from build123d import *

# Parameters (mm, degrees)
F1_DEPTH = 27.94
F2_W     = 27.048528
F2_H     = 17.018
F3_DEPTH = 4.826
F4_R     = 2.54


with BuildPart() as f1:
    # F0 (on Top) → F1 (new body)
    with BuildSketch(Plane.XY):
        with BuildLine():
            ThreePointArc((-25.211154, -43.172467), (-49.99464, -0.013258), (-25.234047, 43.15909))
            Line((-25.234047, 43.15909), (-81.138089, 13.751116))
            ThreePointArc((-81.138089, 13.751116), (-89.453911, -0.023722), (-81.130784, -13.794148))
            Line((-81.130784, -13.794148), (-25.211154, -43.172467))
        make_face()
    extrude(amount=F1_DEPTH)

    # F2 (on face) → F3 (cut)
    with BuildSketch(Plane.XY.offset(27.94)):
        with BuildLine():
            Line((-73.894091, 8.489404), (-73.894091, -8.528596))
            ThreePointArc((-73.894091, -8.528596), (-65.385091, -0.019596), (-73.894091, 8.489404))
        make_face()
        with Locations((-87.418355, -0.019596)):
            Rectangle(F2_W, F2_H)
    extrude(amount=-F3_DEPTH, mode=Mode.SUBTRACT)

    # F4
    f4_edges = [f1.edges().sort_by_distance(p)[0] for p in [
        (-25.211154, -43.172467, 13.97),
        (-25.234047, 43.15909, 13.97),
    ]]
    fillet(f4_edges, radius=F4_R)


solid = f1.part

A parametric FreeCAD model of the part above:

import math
import FreeCAD as App
import Part
import Sketcher
Q = App.Units.Quantity


def edges_at(feature, points):
    """Names of the edges that pass closest to the given points."""
    edges = feature.Shape.Edges
    near = lambda p: min(range(len(edges)), key=lambda i: edges[i].distToShape(Part.Vertex(*p))[0])
    return sorted({f"Edge{near(p) + 1}" for p in points})

doc = App.newDocument("Part")
body = doc.addObject("PartDesign::Body", "Body")

# Sketch on XY plane
sketch1 = body.newObject("Sketcher::SketchObject", "Sketch")
sketch1.AttachmentSupport = (doc.getObject("XY_Plane"), [""])
sketch1.MapMode = "FlatFace"
sketch1.addGeometry([
    Part.ArcOfCircle(Part.Circle(App.Vector(0, 0, 0), App.Vector(0, 0, 1), 50), math.radians(120), math.radians(240)),
    Part.LineSegment(App.Vector(-25, 43, 0), App.Vector(-81, 14, 0)),
    Part.ArcOfCircle(Part.Circle(App.Vector(-74, 0, 0), App.Vector(0, 0, 1), 16), math.radians(118), math.radians(242)),
    Part.LineSegment(App.Vector(-81, -14, 0), App.Vector(-25, -43, 0)),
], False)
sketch1.addConstraint([
    Sketcher.Constraint("Coincident", 0, 1, 1, 1),
    Sketcher.Constraint("Tangent", 1, 2, 2, 1),
    Sketcher.Constraint("Tangent", 2, 2, 3, 1),
    Sketcher.Constraint("Coincident", 3, 2, 0, 2),
    Sketcher.Constraint("Coincident", 0, 3, -1, 1),
    Sketcher.Constraint("Equal", 1, 3),
    Sketcher.Constraint("Radius", 0, 49.994641),
    Sketcher.Constraint("Radius", 2, 15.55982),
    Sketcher.Constraint("DistanceX", 2, 3, -1, 1, 73.894091),
    Sketcher.Constraint("DistanceY", -1, 1, 0, 1, 43.15909),
    Sketcher.Constraint("DistanceX", 1, 2, -1, 1, 81.138089),
])
pad1 = body.newObject("PartDesign::Pad", "Pad")
pad1.Profile = sketch1
pad1.Length = Q("1.1 in")

# Sketch on XY plane
sketch2 = body.newObject("Sketcher::SketchObject", "Sketch001")
sketch2.AttachmentSupport = (doc.getObject("XY_Plane"), [""])
sketch2.MapMode = "FlatFace"
sketch2.AttachmentOffset = App.Placement(App.Vector(0, 0, 1.1 * 25.4), App.Rotation())
sketch2.addGeometry([
    Part.ArcOfCircle(Part.Circle(App.Vector(-74, 0, 0), App.Vector(0, 0, 1), 9), math.radians(-90), math.radians(90)),
    Part.LineSegment(App.Vector(-74, 8, 0), App.Vector(-101, 8, 0)),
    Part.LineSegment(App.Vector(-101, 8, 0), App.Vector(-101, -9, 0)),
    Part.LineSegment(App.Vector(-101, -9, 0), App.Vector(-74, -9, 0)),
], False)
sketch2.addConstraint([
    Sketcher.Constraint("Tangent", 0, 2, 1, 1),
    Sketcher.Constraint("Coincident", 1, 2, 2, 1),
    Sketcher.Constraint("Coincident", 2, 2, 3, 1),
    Sketcher.Constraint("Tangent", 3, 2, 0, 1),
    Sketcher.Constraint("Horizontal", 1),
    Sketcher.Constraint("Vertical", 2),
    Sketcher.Constraint("Horizontal", 3),
    Sketcher.Constraint("Radius", 0, Q("0.335 in")),
    Sketcher.Constraint("DistanceX", 1, 2, 1, 1, 27.048528),
    Sketcher.Constraint("DistanceX", 0, 3, -1, 1, 73.894091),
    Sketcher.Constraint("DistanceY", 0, 3, -1, 1, 0.019596),
])
pocket1 = body.newObject("PartDesign::Pocket", "Pocket")
pocket1.Profile = sketch2
pocket1.Length = Q("0.19 in")
doc.recompute()

fillet = body.newObject("PartDesign::Fillet", "Fillet")
fillet.Base = (pocket1, edges_at(pocket1, [(-25.211, -43.172, 13.97), (-25.234, 43.159, 13.97)]))
fillet.Radius = Q("0.1 in")

doc.recompute()
